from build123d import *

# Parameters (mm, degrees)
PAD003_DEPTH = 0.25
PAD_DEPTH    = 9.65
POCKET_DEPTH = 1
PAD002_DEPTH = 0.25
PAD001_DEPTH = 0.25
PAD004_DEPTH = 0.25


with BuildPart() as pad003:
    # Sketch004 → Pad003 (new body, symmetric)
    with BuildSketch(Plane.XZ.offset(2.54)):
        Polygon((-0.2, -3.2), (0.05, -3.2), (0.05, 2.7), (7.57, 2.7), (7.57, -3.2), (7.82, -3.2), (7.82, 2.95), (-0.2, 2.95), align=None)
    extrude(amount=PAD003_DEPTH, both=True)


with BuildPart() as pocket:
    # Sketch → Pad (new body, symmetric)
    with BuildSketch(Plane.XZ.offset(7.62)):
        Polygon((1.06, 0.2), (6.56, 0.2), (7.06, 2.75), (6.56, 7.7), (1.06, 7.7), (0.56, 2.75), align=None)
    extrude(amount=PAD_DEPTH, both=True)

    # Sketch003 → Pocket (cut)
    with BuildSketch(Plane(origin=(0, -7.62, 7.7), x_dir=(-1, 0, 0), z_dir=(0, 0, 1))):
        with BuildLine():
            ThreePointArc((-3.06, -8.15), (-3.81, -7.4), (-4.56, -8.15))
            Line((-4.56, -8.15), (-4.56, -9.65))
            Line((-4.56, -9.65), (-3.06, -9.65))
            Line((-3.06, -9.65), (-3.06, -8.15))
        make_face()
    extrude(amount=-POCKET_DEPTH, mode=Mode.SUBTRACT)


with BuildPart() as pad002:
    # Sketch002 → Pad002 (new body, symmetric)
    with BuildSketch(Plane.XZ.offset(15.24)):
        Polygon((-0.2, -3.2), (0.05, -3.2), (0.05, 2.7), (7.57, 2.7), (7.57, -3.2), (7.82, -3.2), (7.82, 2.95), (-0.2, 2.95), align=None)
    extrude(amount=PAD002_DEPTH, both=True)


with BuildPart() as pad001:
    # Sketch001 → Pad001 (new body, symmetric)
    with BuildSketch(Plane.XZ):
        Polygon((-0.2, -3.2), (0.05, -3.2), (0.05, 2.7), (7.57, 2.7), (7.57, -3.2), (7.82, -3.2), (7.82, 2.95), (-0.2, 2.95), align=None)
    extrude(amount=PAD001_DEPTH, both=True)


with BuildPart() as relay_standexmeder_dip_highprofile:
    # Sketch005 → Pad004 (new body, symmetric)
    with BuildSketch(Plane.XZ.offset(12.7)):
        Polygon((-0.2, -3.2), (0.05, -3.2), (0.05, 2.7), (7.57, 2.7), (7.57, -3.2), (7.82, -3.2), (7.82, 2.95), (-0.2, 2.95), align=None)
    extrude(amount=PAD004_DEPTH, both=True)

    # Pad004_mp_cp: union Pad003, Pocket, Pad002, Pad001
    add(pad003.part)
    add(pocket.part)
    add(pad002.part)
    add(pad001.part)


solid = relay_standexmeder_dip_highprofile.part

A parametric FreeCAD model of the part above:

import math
import FreeCAD as App
import Part
import Sketcher

doc = App.newDocument("Part")
body = doc.addObject("PartDesign::Body", "Body")

# Sketch on XZ plane
sketch1 = body.newObject("Sketcher::SketchObject", "Sketch")
sketch1.AttachmentSupport = (doc.getObject("XZ_Plane"), [""])
sketch1.MapMode = "FlatFace"
sketch1.AttachmentOffset = App.Placement(App.Vector(0, 0, 2.54), App.Rotation())
sketch1.addGeometry([
    Part.LineSegment(App.Vector(-0.2, -3.2, 0), App.Vector(0.05, -3.2, 0)),  # 0
    Part.LineSegment(App.Vector(0.05, -3.2, 0), App.Vector(0.05, 2.7, 0)),  # 1
    Part.LineSegment(App.Vector(0.05, 2.7, 0), App.Vector(7.57, 2.7, 0)),  # 2
    Part.LineSegment(App.Vector(7.57, 2.7, 0), App.Vector(7.57, -3.2, 0)),  # 3
    Part.LineSegment(App.Vector(7.57, -3.2, 0), App.Vector(7.82, -3.2, 0)),  # 4
    Part.LineSegment(App.Vector(7.82, -3.2, 0), App.Vector(7.82, 2.95, 0)),  # 5
    Part.LineSegment(App.Vector(7.82, 2.95, 0), App.Vector(-0.2, 2.95, 0)),  # 6
    Part.LineSegment(App.Vector(-0.2, 2.95, 0), App.Vector(-0.2, -3.2, 0)),  # 7
], False)
sketch1.addConstraint([
    Sketcher.Constraint("Coincident", 0, 2, 1, 1),
    Sketcher.Constraint("Coincident", 1, 2, 2, 1),
    Sketcher.Constraint("Coincident", 2, 2, 3, 1),
    Sketcher.Constraint("Coincident", 3, 2, 4, 1),
    Sketcher.Constraint("Coincident", 4, 2, 5, 1),
    Sketcher.Constraint("Coincident", 5, 2, 6, 1),
    Sketcher.Constraint("Coincident", 6, 2, 7, 1),
    Sketcher.Constraint("Coincident", 7, 2, 0, 1),
    Sketcher.Constraint("Horizontal", 0),
    Sketcher.Constraint("Vertical", 1),
    Sketcher.Constraint("Horizontal", 2),
    Sketcher.Constraint("Vertical", 3),
    Sketcher.Constraint("Horizontal", 4),
    Sketcher.Constraint("Vertical", 5),
    Sketcher.Constraint("Horizontal", 6),
    Sketcher.Constraint("Vertical", 7),
    Sketcher.Constraint("Horizontal", 0, 2, 3, 2),
    Sketcher.Constraint("Equal", 0, 4),
    Sketcher.Constraint("DistanceY", 1, 1, 1, 2, 5.9),
    Sketcher.Constraint("DistanceX", 0, 1, 0, 2, 0.25),
    Sketcher.Constraint("DistanceX", 2, 1, 2, 2, 7.52),
    Sketcher.Constraint("DistanceY", 5, 1, 5, 2, 6.15),
    Sketcher.Constraint("DistanceY", 0, 2, -1, 1, 3.2),
    Sketcher.Constraint("DistanceX", 6, 2, -1, 1, 0.2),
])
pad1 = body.newObject("PartDesign::Pad", "Pad")
pad1.Profile = sketch1
pad1.Length = 0.5
pad1.Midplane = True
body2 = doc.addObject("PartDesign::Body", "Body001")

# Sketch on XZ plane
sketch2 = body2.newObject("Sketcher::SketchObject", "Sketch001")
sketch2.AttachmentSupport = (doc.getObject("XZ_Plane001"), [""])
sketch2.MapMode = "FlatFace"
sketch2.AttachmentOffset = App.Placement(App.Vector(0, 0, 7.62), App.Rotation())
sketch2.addGeometry([
    Part.LineSegment(App.Vector(1.1, 0.2, 0), App.Vector(6.6, 0.2, 0)),  # 0
    Part.LineSegment(App.Vector(6.6, 0.2, 0), App.Vector(7.1, 2.8, 0)),  # 1
    Part.LineSegment(App.Vector(7.1, 2.8, 0), App.Vector(6.6, 7.7, 0)),  # 2
    Part.LineSegment(App.Vector(6.6, 7.7, 0), App.Vector(1.1, 7.7, 0)),  # 3
    Part.LineSegment(App.Vector(1.1, 7.7, 0), App.Vector(0.6, 2.8, 0)),  # 4
    Part.LineSegment(App.Vector(0.6, 2.8, 0), App.Vector(1.1, 0.2, 0)),  # 5
], False)
sketch2.addConstraint([
    Sketcher.Constraint("Coincident", 0, 2, 1, 1),
    Sketcher.Constraint("Coincident", 1, 2, 2, 1),
    Sketcher.Constraint("Coincident", 2, 2, 3, 1),
    Sketcher.Constraint("Coincident", 3, 2, 4, 1),
    Sketcher.Constraint("Coincident", 4, 2, 5, 1),
    Sketcher.Constraint("Coincident", 5, 2, 0, 1),
    Sketcher.Constraint("Horizontal", 0),
    Sketcher.Constraint("Horizontal", 3),
    Sketcher.Constraint("Horizontal", 1, 2, 4, 2),
    Sketcher.Constraint("Vertical", 0, 2, 2, 2),
    Sketcher.Constraint("Vertical", 3, 2, 5, 2),
    Sketcher.Constraint("Equal", 2, 4),
    Sketcher.Constraint("DistanceX", 0, 1, 0, 2, 5.5),
    Sketcher.Constraint("DistanceX", 3, 2, 1, 2, 6.0),
    Sketcher.Constraint("DistanceY", -1, 1, 0, 2, 0.2),
    Sketcher.Constraint("DistanceY", -1, 1, 2, 2, 7.7),
    Sketcher.Constraint("DistanceX", -1, 1, 0, 2, 6.56),
    Sketcher.Constraint("DistanceY", -1, 1, 1, 2, 2.75),
])
pad2 = body2.newObject("PartDesign::Pad", "Pad001")
pad2.Profile = sketch2
pad2.Length = 19.3
pad2.Midplane = True

# Sketch on XY plane
sketch3 = body2.newObject("Sketcher::SketchObject", "Sketch002")
sketch3.AttachmentSupport = (doc.getObject("XY_Plane001"), [""])
sketch3.MapMode = "FlatFace"
sketch3.AttachmentOffset = App.Placement(App.Vector(0, 0, 7.7), App.Rotation())
sketch3.addGeometry([
    Part.ArcOfCircle(Part.Circle(App.Vector(3.8, 0.5, 0), App.Vector(0, 0, 1), 0.8), math.radians(180), math.radians(360)),
    Part.LineSegment(App.Vector(4.6, 0.5, 0), App.Vector(4.6, 2, 0)),
    Part.LineSegment(App.Vector(4.6, 2, 0), App.Vector(3.1, 2, 0)),
    Part.LineSegment(App.Vector(3.1, 2, 0), App.Vector(3.1, 0.5, 0)),
], False)
sketch3.addConstraint([
    Sketcher.Constraint("Tangent", 0, 2, 1, 1),
    Sketcher.Constraint("Coincident", 1, 2, 2, 1),
    Sketcher.Constraint("Coincident", 2, 2, 3, 1),
    Sketcher.Constraint("Tangent", 3, 2, 0, 1),
    Sketcher.Constraint("Vertical", 1),
    Sketcher.Constraint("Horizontal", 2),
    Sketcher.Constraint("Vertical", 3),
    Sketcher.Constraint("Equal", 2, 1),
    Sketcher.Constraint("Radius", 0, 0.75),
    Sketcher.Constraint("DistanceX", -1, 1, 0, 3, 3.81),
    Sketcher.Constraint("DistanceY", -1, 1, 0, 3, 0.53),
])
pocket1 = body2.newObject("PartDesign::Pocket", "Pocket")
pocket1.Profile = sketch3
pocket1.Length = 1
body3 = doc.addObject("PartDesign::Body", "Body002")

# Sketch on XZ plane
sketch4 = body3.newObject("Sketcher::SketchObject", "Sketch003")
sketch4.AttachmentSupport = (doc.getObject("XZ_Plane002"), [""])
sketch4.MapMode = "FlatFace"
sketch4.AttachmentOffset = App.Placement(App.Vector(0, 0, 15.24), App.Rotation())
sketch4.addGeometry([
    Part.LineSegment(App.Vector(-0.2, -3.2, 0), App.Vector(0.05, -3.2, 0)),  # 0
    Part.LineSegment(App.Vector(0.05, -3.2, 0), App.Vector(0.05, 2.7, 0)),  # 1
    Part.LineSegment(App.Vector(0.05, 2.7, 0), App.Vector(7.57, 2.7, 0)),  # 2
    Part.LineSegment(App.Vector(7.57, 2.7, 0), App.Vector(7.57, -3.2, 0)),  # 3
    Part.LineSegment(App.Vector(7.57, -3.2, 0), App.Vector(7.82, -3.2, 0)),  # 4
    Part.LineSegment(App.Vector(7.82, -3.2, 0), App.Vector(7.82, 2.95, 0)),  # 5
    Part.LineSegment(App.Vector(7.82, 2.95, 0), App.Vector(-0.2, 2.95, 0)),  # 6
    Part.LineSegment(App.Vector(-0.2, 2.95, 0), App.Vector(-0.2, -3.2, 0)),  # 7
], False)
sketch4.addConstraint([
    Sketcher.Constraint("Coincident", 0, 2, 1, 1),
    Sketcher.Constraint("Coincident", 1, 2, 2, 1),
    Sketcher.Constraint("Coincident", 2, 2, 3, 1),
    Sketcher.Constraint("Coincident", 3, 2, 4, 1),
    Sketcher.Constraint("Coincident", 4, 2, 5, 1),
    Sketcher.Constraint("Coincident", 5, 2, 6, 1),
    Sketcher.Constraint("Coincident", 6, 2, 7, 1),
    Sketcher.Constraint("Coincident", 7, 2, 0, 1),
    Sketcher.Constraint("Horizontal", 0),
    Sketcher.Constraint("Vertical", 1),
    Sketcher.Constraint("Horizontal", 2),
    Sketcher.Constraint("Vertical", 3),
    Sketcher.Constraint("Horizontal", 4),
    Sketcher.Constraint("Vertical", 5),
    Sketcher.Constraint("Horizontal", 6),
    Sketcher.Constraint("Vertical", 7),
    Sketcher.Constraint("Horizontal", 0, 2, 3, 2),
    Sketcher.Constraint("Equal", 0, 4),
    Sketcher.Constraint("DistanceY", 1, 1, 1, 2, 5.9),
    Sketcher.Constraint("DistanceX", 0, 1, 0, 2, 0.25),
    Sketcher.Constraint("DistanceX", 2, 1, 2, 2, 7.52),
    Sketcher.Constraint("DistanceY", 5, 1, 5, 2, 6.15),
    Sketcher.Constraint("DistanceY", 0, 2, -1, 1, 3.2),
    Sketcher.Constraint("DistanceX", 6, 2, -1, 1, 0.2),
])
pad3 = body3.newObject("PartDesign::Pad", "Pad002")
pad3.Profile = sketch4
pad3.Length = 0.5
pad3.Midplane = True
body4 = doc.addObject("PartDesign::Body", "Body003")

# Sketch on XZ plane
sketch5 = body4.newObject("Sketcher::SketchObject", "Sketch004")
sketch5.AttachmentSupport = (doc.getObject("XZ_Plane003"), [""])
sketch5.MapMode = "FlatFace"
sketch5.addGeometry([
    Part.LineSegment(App.Vector(-0.2, -3.2, 0), App.Vector(0.05, -3.2, 0)),  # 0
    Part.LineSegment(App.Vector(0.05, -3.2, 0), App.Vector(0.05, 2.7, 0)),  # 1
    Part.LineSegment(App.Vector(0.05, 2.7, 0), App.Vector(7.57, 2.7, 0)),  # 2
    Part.LineSegment(App.Vector(7.57, 2.7, 0), App.Vector(7.57, -3.2, 0)),  # 3
    Part.LineSegment(App.Vector(7.57, -3.2, 0), App.Vector(7.82, -3.2, 0)),  # 4
    Part.LineSegment(App.Vector(7.82, -3.2, 0), App.Vector(7.82, 2.95, 0)),  # 5
    Part.LineSegment(App.Vector(7.82, 2.95, 0), App.Vector(-0.2, 2.95, 0)),  # 6
    Part.LineSegment(App.Vector(-0.2, 2.95, 0), App.Vector(-0.2, -3.2, 0)),  # 7
], False)
sketch5.addConstraint([
    Sketcher.Constraint("Coincident", 0, 2, 1, 1),
    Sketcher.Constraint("Coincident", 1, 2, 2, 1),
    Sketcher.Constraint("Coincident", 2, 2, 3, 1),
    Sketcher.Constraint("Coincident", 3, 2, 4, 1),
    Sketcher.Constraint("Coincident", 4, 2, 5, 1),
    Sketcher.Constraint("Coincident", 5, 2, 6, 1),
    Sketcher.Constraint("Coincident", 6, 2, 7, 1),
    Sketcher.Constraint("Coincident", 7, 2, 0, 1),
    Sketcher.Constraint("Horizontal", 0),
    Sketcher.Constraint("Vertical", 1),
    Sketcher.Constraint("Horizontal", 2),
    Sketcher.Constraint("Vertical", 3),
    Sketcher.Constraint("Horizontal", 4),
    Sketcher.Constraint("Vertical", 5),
    Sketcher.Constraint("Horizontal", 6),
    Sketcher.Constraint("Vertical", 7),
    Sketcher.Constraint("Horizontal", 0, 2, 3, 2),
    Sketcher.Constraint("Equal", 0, 4),
    Sketcher.Constraint("DistanceY", 1, 1, 1, 2, 5.9),
    Sketcher.Constraint("DistanceX", 0, 1, 0, 2, 0.25),
    Sketcher.Constraint("DistanceX", 2, 1, 2, 2, 7.52),
    Sketcher.Constraint("DistanceY", 5, 1, 5, 2, 6.15),
    Sketcher.Constraint("DistanceY", 0, 2, -1, 1, 3.2),
    Sketcher.Constraint("DistanceX", 6, 2, -1, 1, 0.2),
])
pad4 = body4.newObject("PartDesign::Pad", "Pad003")
pad4.Profile = sketch5
pad4.Length = 0.5
pad4.Midplane = True
body5 = doc.addObject("PartDesign::Body", "Body004")
body5.AllowCompound = True

# Sketch on XZ plane
sketch6 = body5.newObject("Sketcher::SketchObject", "Sketch005")
sketch6.AttachmentSupport = (doc.getObject("XZ_Plane004"), [""])
sketch6.MapMode = "FlatFace"
sketch6.AttachmentOffset = App.Placement(App.Vector(0, 0, 12.7), App.Rotation())
sketch6.addGeometry([
    Part.LineSegment(App.Vector(-0.2, -3.2, 0), App.Vector(0.05, -3.2, 0)),  # 0
    Part.LineSegment(App.Vector(0.05, -3.2, 0), App.Vector(0.05, 2.7, 0)),  # 1
    Part.LineSegment(App.Vector(0.05, 2.7, 0), App.Vector(7.57, 2.7, 0)),  # 2
    Part.LineSegment(App.Vector(7.57, 2.7, 0), App.Vector(7.57, -3.2, 0)),  # 3
    Part.LineSegment(App.Vector(7.57, -3.2, 0), App.Vector(7.82, -3.2, 0)),  # 4
    Part.LineSegment(App.Vector(7.82, -3.2, 0), App.Vector(7.82, 2.95, 0)),  # 5
    Part.LineSegment(App.Vector(7.82, 2.95, 0), App.Vector(-0.2, 2.95, 0)),  # 6
    Part.LineSegment(App.Vector(-0.2, 2.95, 0), App.Vector(-0.2, -3.2, 0)),  # 7
], False)
sketch6.addConstraint([
    Sketcher.Constraint("Coincident", 0, 2, 1, 1),
    Sketcher.Constraint("Coincident", 1, 2, 2, 1),
    Sketcher.Constraint("Coincident", 2, 2, 3, 1),
    Sketcher.Constraint("Coincident", 3, 2, 4, 1),
    Sketcher.Constraint("Coincident", 4, 2, 5, 1),
    Sketcher.Constraint("Coincident", 5, 2, 6, 1),
    Sketcher.Constraint("Coincident", 6, 2, 7, 1),
    Sketcher.Constraint("Coincident", 7, 2, 0, 1),
    Sketcher.Constraint("Horizontal", 0),
    Sketcher.Constraint("Vertical", 1),
    Sketcher.Constraint("Horizontal", 2),
    Sketcher.Constraint("Vertical", 3),
    Sketcher.Constraint("Horizontal", 4),
    Sketcher.Constraint("Vertical", 5),
    Sketcher.Constraint("Horizontal", 6),
    Sketcher.Constraint("Vertical", 7),
    Sketcher.Constraint("Horizontal", 0, 2, 3, 2),
    Sketcher.Constraint("Equal", 0, 4),
    Sketcher.Constraint("DistanceY", 1, 1, 1, 2, 5.9),
    Sketcher.Constraint("DistanceX", 0, 1, 0, 2, 0.25),
    Sketcher.Constraint("DistanceX", 2, 1, 2, 2, 7.52),
    Sketcher.Constraint("DistanceY", 5, 1, 5, 2, 6.15),
    Sketcher.Constraint("DistanceY", 0, 2, -1, 1, 3.2),
    Sketcher.Constraint("DistanceX", 6, 2, -1, 1, 0.2),
])
pad5 = body5.newObject("PartDesign::Pad", "Pad004")
pad5.Profile = sketch6
pad5.Length = 0.5
pad5.Midplane = True
doc.recompute()

boolean = body5.newObject("PartDesign::Boolean", "Boolean")
boolean.Type = "Fuse"
boolean.addObjects([body])
doc.recompute()

boolean2 = body5.newObject("PartDesign::Boolean", "Boolean001")
boolean2.Type = "Fuse"
boolean2.addObjects([body2])
doc.recompute()

boolean3 = body5.newObject("PartDesign::Boolean", "Boolean002")
boolean3.Type = "Fuse"
boolean3.addObjects([body3])
doc.recompute()

boolean4 = body5.newObject("PartDesign::Boolean", "Boolean003")
boolean4.Type = "Fuse"
boolean4.addObjects([body4])

doc.recompute()
